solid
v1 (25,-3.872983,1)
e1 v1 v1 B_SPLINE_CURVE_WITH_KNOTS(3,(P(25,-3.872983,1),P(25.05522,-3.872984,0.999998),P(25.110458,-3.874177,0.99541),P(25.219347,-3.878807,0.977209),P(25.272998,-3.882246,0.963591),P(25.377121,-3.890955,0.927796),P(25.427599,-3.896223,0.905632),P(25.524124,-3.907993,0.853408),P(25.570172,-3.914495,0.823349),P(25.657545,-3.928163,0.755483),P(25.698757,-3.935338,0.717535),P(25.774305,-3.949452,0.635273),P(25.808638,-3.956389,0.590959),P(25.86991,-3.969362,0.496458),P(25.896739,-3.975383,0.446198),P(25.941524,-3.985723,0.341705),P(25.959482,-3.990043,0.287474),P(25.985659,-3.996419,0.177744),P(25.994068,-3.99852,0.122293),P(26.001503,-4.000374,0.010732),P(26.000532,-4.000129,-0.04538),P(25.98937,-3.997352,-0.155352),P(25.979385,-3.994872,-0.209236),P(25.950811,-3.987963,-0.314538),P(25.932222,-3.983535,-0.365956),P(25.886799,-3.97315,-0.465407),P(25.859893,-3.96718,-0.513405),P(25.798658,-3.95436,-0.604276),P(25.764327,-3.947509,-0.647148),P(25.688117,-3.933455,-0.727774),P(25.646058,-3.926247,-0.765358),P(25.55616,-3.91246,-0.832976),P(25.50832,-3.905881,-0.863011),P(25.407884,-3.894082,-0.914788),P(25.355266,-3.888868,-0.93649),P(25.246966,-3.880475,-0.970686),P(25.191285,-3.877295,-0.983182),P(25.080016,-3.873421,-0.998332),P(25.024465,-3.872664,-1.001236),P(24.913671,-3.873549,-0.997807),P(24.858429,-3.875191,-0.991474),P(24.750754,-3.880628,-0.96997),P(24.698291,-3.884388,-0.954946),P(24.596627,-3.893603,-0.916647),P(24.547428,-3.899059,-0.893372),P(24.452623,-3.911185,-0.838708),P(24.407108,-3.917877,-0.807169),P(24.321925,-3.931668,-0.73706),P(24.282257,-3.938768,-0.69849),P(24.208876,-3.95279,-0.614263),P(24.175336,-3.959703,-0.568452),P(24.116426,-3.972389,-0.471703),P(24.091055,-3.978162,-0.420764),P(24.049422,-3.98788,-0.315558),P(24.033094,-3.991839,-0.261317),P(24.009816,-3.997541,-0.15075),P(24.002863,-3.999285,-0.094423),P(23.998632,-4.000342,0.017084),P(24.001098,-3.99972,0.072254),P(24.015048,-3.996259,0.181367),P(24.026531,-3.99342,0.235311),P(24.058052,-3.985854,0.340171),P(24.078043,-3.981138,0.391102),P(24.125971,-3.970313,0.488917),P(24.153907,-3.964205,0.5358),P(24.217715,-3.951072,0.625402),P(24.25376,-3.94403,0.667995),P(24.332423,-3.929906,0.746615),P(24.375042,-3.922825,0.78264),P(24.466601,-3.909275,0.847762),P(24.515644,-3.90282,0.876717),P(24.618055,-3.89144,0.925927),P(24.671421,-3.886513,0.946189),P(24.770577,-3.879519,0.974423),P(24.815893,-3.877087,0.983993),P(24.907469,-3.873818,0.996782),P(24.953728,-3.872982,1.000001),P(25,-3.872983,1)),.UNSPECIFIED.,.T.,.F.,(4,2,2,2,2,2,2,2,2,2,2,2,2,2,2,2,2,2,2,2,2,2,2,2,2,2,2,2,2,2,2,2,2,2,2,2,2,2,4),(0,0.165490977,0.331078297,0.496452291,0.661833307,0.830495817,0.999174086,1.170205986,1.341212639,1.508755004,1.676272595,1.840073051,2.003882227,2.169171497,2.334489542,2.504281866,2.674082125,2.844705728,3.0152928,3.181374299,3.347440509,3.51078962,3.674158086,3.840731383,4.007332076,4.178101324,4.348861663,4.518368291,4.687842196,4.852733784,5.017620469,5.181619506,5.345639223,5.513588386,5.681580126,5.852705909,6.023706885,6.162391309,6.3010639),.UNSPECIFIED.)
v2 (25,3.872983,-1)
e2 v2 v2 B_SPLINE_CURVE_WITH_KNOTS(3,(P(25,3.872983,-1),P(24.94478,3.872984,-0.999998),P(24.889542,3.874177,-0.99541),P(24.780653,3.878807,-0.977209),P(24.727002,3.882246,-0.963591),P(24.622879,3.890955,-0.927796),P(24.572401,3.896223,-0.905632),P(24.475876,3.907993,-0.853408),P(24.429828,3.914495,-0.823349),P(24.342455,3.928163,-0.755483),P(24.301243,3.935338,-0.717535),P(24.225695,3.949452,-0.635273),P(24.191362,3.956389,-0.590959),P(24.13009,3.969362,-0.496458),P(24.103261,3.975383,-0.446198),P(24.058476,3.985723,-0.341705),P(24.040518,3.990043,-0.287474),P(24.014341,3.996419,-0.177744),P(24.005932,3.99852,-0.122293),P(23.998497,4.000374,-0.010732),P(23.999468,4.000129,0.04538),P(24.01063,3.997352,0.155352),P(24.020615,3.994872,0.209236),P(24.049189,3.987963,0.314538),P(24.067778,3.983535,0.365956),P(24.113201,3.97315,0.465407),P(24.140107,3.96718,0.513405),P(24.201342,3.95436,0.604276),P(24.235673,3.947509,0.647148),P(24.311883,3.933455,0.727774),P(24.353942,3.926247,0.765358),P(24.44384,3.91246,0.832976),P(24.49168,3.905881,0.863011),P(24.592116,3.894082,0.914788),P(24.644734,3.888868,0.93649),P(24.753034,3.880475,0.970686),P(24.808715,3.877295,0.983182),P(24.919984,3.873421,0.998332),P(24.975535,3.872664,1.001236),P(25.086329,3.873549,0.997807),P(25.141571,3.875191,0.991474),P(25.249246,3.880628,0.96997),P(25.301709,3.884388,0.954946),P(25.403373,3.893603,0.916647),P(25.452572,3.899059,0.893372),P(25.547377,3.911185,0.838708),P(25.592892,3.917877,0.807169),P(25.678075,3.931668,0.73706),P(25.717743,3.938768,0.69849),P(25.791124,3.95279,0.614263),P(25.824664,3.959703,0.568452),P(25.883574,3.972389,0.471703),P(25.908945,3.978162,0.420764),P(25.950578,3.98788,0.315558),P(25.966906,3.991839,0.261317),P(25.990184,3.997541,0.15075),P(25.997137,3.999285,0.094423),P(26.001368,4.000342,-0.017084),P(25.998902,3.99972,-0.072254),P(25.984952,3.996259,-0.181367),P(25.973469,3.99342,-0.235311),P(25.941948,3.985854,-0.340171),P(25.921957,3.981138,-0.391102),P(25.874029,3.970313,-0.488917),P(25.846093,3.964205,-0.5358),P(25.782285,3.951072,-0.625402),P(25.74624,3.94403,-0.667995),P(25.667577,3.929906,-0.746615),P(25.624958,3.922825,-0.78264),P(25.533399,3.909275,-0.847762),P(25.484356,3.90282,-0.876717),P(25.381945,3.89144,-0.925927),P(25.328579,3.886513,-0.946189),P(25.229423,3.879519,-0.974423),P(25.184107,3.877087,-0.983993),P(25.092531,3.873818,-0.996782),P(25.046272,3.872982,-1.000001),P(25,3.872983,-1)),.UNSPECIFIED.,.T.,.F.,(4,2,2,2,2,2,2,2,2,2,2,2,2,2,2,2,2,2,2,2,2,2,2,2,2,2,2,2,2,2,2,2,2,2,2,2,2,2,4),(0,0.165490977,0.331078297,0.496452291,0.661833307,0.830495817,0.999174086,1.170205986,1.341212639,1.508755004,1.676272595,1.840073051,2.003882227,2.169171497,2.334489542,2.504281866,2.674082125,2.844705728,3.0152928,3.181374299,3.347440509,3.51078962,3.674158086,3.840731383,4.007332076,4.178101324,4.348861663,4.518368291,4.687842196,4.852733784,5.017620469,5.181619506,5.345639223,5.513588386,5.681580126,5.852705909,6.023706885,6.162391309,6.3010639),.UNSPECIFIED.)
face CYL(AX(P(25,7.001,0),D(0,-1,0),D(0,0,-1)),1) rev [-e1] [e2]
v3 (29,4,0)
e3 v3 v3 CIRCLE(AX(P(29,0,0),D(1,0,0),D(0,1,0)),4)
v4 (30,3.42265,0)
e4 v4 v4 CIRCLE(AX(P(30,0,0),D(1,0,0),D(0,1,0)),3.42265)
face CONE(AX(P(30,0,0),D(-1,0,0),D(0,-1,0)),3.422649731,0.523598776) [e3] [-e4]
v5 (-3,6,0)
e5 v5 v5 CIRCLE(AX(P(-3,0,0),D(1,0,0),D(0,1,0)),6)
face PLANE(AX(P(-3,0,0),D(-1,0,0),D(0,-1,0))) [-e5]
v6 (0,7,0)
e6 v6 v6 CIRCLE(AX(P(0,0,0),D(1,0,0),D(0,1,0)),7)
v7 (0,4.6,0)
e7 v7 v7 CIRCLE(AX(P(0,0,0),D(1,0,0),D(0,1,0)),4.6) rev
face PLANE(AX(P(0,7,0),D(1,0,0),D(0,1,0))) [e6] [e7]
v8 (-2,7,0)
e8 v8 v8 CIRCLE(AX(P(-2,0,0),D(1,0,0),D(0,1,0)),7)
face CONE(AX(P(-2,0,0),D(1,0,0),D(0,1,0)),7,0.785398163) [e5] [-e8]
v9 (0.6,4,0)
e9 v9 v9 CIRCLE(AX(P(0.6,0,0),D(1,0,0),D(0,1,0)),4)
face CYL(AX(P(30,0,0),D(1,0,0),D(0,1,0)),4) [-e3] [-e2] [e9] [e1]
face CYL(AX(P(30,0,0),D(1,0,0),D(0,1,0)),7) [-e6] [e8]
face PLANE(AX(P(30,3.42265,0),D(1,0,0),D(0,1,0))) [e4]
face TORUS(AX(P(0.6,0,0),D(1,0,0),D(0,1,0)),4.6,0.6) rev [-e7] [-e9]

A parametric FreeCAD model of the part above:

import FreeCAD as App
import Part
import Sketcher
Q = App.Units.Quantity


def edges_at(feature, points):
    """Names of the edges that pass closest to the given points."""
    edges = feature.Shape.Edges
    near = lambda p: min(range(len(edges)), key=lambda i: edges[i].distToShape(Part.Vertex(*p))[0])
    return sorted({f"Edge{near(p) + 1}" for p in points})

doc = App.newDocument("Part")
params = doc.addObject("Spreadsheet::Sheet", "Params")
for row, (alias, value) in enumerate([
    ("sketch1_width", "33 mm"),
    ("sketch1_width2", "29 mm"),
    ("sketch1_width3", "2 mm"),
    ("sketch1_height", "6 mm"),
    ("sketch1_height2", "3 mm"),
    ("revolution_angle", "360 deg"),
    ("fillet_radius", "0.6 mm"),
    ("sketch2_diameter", "2 mm"),
    ("sketch3_diameter", "2 mm"),
    ("pocket2_length", "4 mm"),
], start=1):
    params.set(f"A{row}", alias)
    params.set(f"B{row}", "=" + value)
    params.setAlias(f"B{row}", alias)

body = doc.addObject("PartDesign::Body", "Body")

sketch1 = body.newObject("Sketcher::SketchObject", "Sketch")
sketch1.AttachmentSupport = (doc.getObject("XY_Plane"), [""])
sketch1.MapMode = "FlatFace"
sketch1.addGeometry([
    Part.LineSegment(App.Vector(-3, 6, 0), App.Vector(-3, 0, 0)),
    Part.LineSegment(App.Vector(-3, 0, 0), App.Vector(30, 0, 0)),
    Part.LineSegment(App.Vector(30, 0, 0), App.Vector(30, 3.4, 0)),
    Part.LineSegment(App.Vector(30, 3.4, 0), App.Vector(29, 4, 0)),
    Part.LineSegment(App.Vector(29, 4, 0), App.Vector(0, 4, 0)),
    Part.LineSegment(App.Vector(0, 4, 0), App.Vector(0, 7, 0)),
    Part.LineSegment(App.Vector(0, 7, 0), App.Vector(-2, 7, 0)),
    Part.LineSegment(App.Vector(-2, 7, 0), App.Vector(-3, 6, 0)),
], False)
sketch1.addConstraint([
    Sketcher.Constraint("Coincident", 0, 2, 1, 1),
    Sketcher.Constraint("Coincident", 1, 2, 2, 1),
    Sketcher.Constraint("Coincident", 2, 2, 3, 1),
    Sketcher.Constraint("Coincident", 3, 2, 4, 1),
    Sketcher.Constraint("Coincident", 4, 2, 5, 1),
    Sketcher.Constraint("Coincident", 5, 2, 6, 1),
    Sketcher.Constraint("Coincident", 6, 2, 7, 1),
    Sketcher.Constraint("Coincident", 7, 2, 0, 1),
    Sketcher.Constraint("Vertical", 0),
    Sketcher.Constraint("Horizontal", 1),
    Sketcher.Constraint("Vertical", 2),
    Sketcher.Constraint("Horizontal", 4),
    Sketcher.Constraint("Vertical", 5),
    Sketcher.Constraint("Horizontal", 6),
    Sketcher.Constraint("PointOnObject", 0, 2, -1),
    Sketcher.Constraint("PointOnObject", 4, 2, -2),
    Sketcher.Constraint("DistanceX", 1, 1, 1, 2, 33.0),
    Sketcher.Constraint("DistanceX", 4, 2, 4, 1, 29.0),
    Sketcher.Constraint("DistanceX", 6, 2, 6, 1, 2.0),
    Sketcher.Constraint("DistanceY", 0, 2, 0, 1, 6.0),
    Sketcher.Constraint("DistanceY", 5, 1, 5, 2, 3.0),
    Sketcher.Constraint("Angle", 3, Q("150 deg")),
    Sketcher.Constraint("Angle", 7, Q("-135 deg")),
    Sketcher.Constraint("DistanceX", 0, 2, -1, 1, 3.0),
])
sketch1.setExpression("Constraints[16]", "Params.sketch1_width")
sketch1.setExpression("Constraints[17]", "Params.sketch1_width2")
sketch1.setExpression("Constraints[18]", "Params.sketch1_width3")
sketch1.setExpression("Constraints[19]", "Params.sketch1_height")
sketch1.setExpression("Constraints[20]", "Params.sketch1_height2")
revolution = body.newObject("PartDesign::Revolution", "Revolution")
revolution.Profile = sketch1
revolution.ReferenceAxis = (sketch1, ["H_Axis"])
revolution.setExpression("Angle", "Params.revolution_angle")
doc.recompute()

fillet = body.newObject("PartDesign::Fillet", "Fillet")
fillet.Base = (revolution, edges_at(revolution, [(0, -4, 0)]))
fillet.setExpression("Radius", "Params.fillet_radius")

sketch2 = body.newObject("Sketcher::SketchObject", "Sketch001")
sketch2.AttachmentSupport = (doc.getObject("XZ_Plane"), [""])
sketch2.MapMode = "FlatFace"
sketch2.addGeometry(Part.Circle(App.Vector(25, 0, 0), App.Vector(0, 0, 1), 1), False)
sketch2.addConstraint([
    Sketcher.Constraint("PointOnObject", 0, 3, -1),
    Sketcher.Constraint("Diameter", 0, 2.0),
    Sketcher.Constraint("DistanceX", -1, 1, 0, 3, 25.0),
])
sketch2.setExpression("Constraints[1]", "Params.sketch2_diameter")
pocket1 = body.newObject("PartDesign::Pocket", "Pocket")
pocket1.Profile = sketch2
pocket1.Type = "UpToFirst"
pocket1.Reversed = True

sketch3 = body.newObject("Sketcher::SketchObject", "Sketch002")
sketch3.AttachmentSupport = (doc.getObject("XZ_Plane"), [""])
sketch3.MapMode = "FlatFace"
sketch3.addGeometry(Part.Circle(App.Vector(25, 0, 0), App.Vector(0, 0, 1), 1), False)
sketch3.addConstraint([
    Sketcher.Constraint("PointOnObject", 0, 3, -1),
    Sketcher.Constraint("Diameter", 0, 2.0),
    Sketcher.Constraint("DistanceX", -1, 1, 0, 3, 25.0),
])
sketch3.setExpression("Constraints[1]", "Params.sketch3_diameter")
pocket2 = body.newObject("PartDesign::Pocket", "Pocket001")
pocket2.Profile = sketch3
pocket2.setExpression("Length", "Params.pocket2_length")

doc.recompute()
